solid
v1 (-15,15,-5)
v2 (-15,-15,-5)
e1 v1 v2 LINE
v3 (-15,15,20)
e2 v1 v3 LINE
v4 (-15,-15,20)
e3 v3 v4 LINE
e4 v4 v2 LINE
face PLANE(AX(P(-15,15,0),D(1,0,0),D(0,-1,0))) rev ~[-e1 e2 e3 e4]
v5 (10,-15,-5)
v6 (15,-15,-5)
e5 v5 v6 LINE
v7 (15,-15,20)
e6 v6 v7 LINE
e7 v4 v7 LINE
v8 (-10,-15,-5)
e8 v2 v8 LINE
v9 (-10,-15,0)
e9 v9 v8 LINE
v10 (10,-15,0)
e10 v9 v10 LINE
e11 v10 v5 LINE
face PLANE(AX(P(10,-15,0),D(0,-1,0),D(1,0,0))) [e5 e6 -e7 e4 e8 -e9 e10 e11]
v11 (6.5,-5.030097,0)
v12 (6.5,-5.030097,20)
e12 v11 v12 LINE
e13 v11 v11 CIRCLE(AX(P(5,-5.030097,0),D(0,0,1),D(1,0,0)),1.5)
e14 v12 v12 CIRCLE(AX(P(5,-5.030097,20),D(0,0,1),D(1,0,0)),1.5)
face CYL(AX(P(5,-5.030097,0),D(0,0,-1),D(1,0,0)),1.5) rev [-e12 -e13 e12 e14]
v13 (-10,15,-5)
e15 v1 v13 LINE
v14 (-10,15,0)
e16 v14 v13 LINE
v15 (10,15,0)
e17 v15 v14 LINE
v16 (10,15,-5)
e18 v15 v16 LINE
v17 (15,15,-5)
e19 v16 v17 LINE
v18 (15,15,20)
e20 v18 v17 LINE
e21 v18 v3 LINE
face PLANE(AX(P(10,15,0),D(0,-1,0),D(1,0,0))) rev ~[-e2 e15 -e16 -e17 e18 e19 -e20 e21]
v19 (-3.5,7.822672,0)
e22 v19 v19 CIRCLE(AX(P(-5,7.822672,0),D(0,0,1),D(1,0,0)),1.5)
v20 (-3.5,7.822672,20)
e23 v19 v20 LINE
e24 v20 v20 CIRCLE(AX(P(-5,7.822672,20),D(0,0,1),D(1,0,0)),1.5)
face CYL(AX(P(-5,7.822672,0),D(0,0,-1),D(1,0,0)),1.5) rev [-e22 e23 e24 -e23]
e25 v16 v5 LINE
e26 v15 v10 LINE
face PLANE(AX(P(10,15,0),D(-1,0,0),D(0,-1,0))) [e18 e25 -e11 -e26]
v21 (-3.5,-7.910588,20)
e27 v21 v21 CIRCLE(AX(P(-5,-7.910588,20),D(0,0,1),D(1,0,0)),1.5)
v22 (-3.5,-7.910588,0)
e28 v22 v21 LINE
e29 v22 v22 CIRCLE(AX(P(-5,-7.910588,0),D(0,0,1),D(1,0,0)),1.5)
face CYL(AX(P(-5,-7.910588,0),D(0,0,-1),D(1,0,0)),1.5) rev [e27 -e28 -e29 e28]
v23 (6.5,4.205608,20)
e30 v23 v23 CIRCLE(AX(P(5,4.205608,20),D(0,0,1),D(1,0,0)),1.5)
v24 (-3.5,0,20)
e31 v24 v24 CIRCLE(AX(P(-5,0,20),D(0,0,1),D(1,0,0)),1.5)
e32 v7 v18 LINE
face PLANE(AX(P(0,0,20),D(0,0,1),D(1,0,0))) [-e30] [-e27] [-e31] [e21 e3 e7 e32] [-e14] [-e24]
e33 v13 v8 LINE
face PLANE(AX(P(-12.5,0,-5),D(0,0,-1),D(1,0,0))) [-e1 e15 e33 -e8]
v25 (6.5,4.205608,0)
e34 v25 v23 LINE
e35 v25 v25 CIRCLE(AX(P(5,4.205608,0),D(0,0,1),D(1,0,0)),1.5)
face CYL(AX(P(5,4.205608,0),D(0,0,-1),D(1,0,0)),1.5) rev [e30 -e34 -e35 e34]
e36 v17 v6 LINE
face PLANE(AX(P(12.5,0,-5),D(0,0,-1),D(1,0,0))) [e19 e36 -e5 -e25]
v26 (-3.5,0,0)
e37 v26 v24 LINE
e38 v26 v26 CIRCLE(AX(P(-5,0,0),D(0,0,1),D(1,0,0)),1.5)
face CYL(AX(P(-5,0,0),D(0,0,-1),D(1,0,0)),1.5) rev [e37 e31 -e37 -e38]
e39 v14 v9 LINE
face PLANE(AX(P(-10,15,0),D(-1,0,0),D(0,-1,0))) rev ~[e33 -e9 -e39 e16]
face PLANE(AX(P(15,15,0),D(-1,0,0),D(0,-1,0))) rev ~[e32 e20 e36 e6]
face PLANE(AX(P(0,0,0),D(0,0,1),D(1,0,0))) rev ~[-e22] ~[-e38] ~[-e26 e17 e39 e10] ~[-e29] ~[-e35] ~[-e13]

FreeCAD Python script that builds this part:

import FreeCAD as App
import Part
import Sketcher

V = App.Vector


def add_polygon(sketch, points):
    """Adds a closed chain of lines whose ends are joined by coincident constraints."""
    first, n = sketch.GeometryCount, len(points)
    for a, b in zip(points, points[1:] + points[:1]):
        sketch.addGeometry(Part.LineSegment(App.Vector(*a, 0), App.Vector(*b, 0)), False)
    for i in range(n):
        sketch.addConstraint(Sketcher.Constraint("Coincident", first + i, 2, first + (i + 1) % n, 1))

doc = App.newDocument("Part")
body = doc.addObject("PartDesign::Body", "Body")

# Sketch on XY plane
sketch1 = doc.addObject("Sketcher::SketchObject", "Sketch")
body.addObject(sketch1)
sketch1.AttachmentSupport = (doc.XY_Plane, [""])
sketch1.MapMode = "FlatFace"
add_polygon(sketch1, [(-15, 15), (-15, -15), (15, -15), (15, 15)])  # lines 0-3
sketch1.addGeometry(Part.Circle(V(-5, -7.9, 0), V(0, 0, 1), 1.5), False)  # 4
sketch1.addGeometry(Part.Circle(V(5, -5, 0), V(0, 0, 1), 1.5), False)  # 5
sketch1.addGeometry(Part.Circle(V(-5, 0, 0), V(0, 0, 1), 1.5), False)  # 6
sketch1.addGeometry(Part.Circle(V(-5, 7.8, 0), V(0, 0, 1), 1.5), False)  # 7
sketch1.addGeometry(Part.Circle(V(5, 4.2, 0), V(0, 0, 1), 1.5), False)  # 8
sketch1.addConstraint(Sketcher.Constraint("Vertical", 0))
sketch1.addConstraint(Sketcher.Constraint("Horizontal", 1))
sketch1.addConstraint(Sketcher.Constraint("Vertical", 2))
sketch1.addConstraint(Sketcher.Constraint("Horizontal", 3))
sketch1.addConstraint(Sketcher.Constraint("Equal", 4, 5))
sketch1.addConstraint(Sketcher.Constraint("Equal", 5, 6))
sketch1.addConstraint(Sketcher.Constraint("Equal", 6, 7))
sketch1.addConstraint(Sketcher.Constraint("Equal", 7, 8))
sketch1.addConstraint(Sketcher.Constraint("Symmetric", 0, 2, 2, 2, -1, 1))
sketch1.addConstraint(Sketcher.Constraint("PointOnObject", 6, 3, -1))
sketch1.addConstraint(Sketcher.Constraint("Vertical", 4, 3, 6, 3))
sketch1.addConstraint(Sketcher.Constraint("Vertical", 6, 3, 7, 3))
sketch1.addConstraint(Sketcher.Constraint("Vertical", 5, 3, 8, 3))
sketch1.addConstraint(Sketcher.Constraint("Equal", 3, 0))
sketch1.addConstraint(Sketcher.Constraint("Diameter", 4, 3.0))
sketch1.addConstraint(Sketcher.Constraint("DistanceX", 1, 1, 1, 2, 30.0))
sketch1.addConstraint(Sketcher.Constraint("DistanceX", 4, 3, -1, 1, 5.0))
sketch1.addConstraint(Sketcher.Constraint("DistanceX", -1, 1, 5, 3, 5.0))
sketch1.addConstraint(Sketcher.Constraint("DistanceY", -1, 1, 7, 3, 7.822672))
sketch1.addConstraint(Sketcher.Constraint("DistanceY", 4, 3, 5, 3, 2.880491))
sketch1.addConstraint(Sketcher.Constraint("DistanceY", 4, 3, 7, 3, 15.73326))
sketch1.addConstraint(Sketcher.Constraint("DistanceY", -1, 1, 8, 3, 4.205608))
pad1 = doc.addObject("PartDesign::Pad", "Pad")
body.addObject(pad1)
pad1.Profile = sketch1
pad1.Length = 20

# Sketch on XY plane
sketch2 = doc.addObject("Sketcher::SketchObject", "Sketch001")
body.addObject(sketch2)
sketch2.AttachmentSupport = (doc.XY_Plane, [""])
sketch2.MapMode = "FlatFace"
add_polygon(sketch2, [(10, -15), (10, 15), (15, 15), (15, -15)])  # lines 0-3
add_polygon(sketch2, [(-15, -15), (-15, 15), (-10, 15), (-10, -15)])  # lines 4-7
sketch2.addConstraint(Sketcher.Constraint("Vertical", 0))
sketch2.addConstraint(Sketcher.Constraint("Horizontal", 1))
sketch2.addConstraint(Sketcher.Constraint("Vertical", 2))
sketch2.addConstraint(Sketcher.Constraint("Horizontal", 3))
sketch2.addConstraint(Sketcher.Constraint("Vertical", 4))
sketch2.addConstraint(Sketcher.Constraint("Horizontal", 5))
sketch2.addConstraint(Sketcher.Constraint("Vertical", 6))
sketch2.addConstraint(Sketcher.Constraint("Horizontal", 7))
sketch2.addConstraint(Sketcher.Constraint("Symmetric", 2, 2, 4, 2, -1, 1))
sketch2.addConstraint(Sketcher.Constraint("Symmetric", 0, 2, 6, 2, -1, 1))
sketch2.addConstraint(Sketcher.Constraint("Horizontal", 1, 2, 4, 2))
sketch2.addConstraint(Sketcher.Constraint("DistanceX", 1, 1, 1, 2, 5.0))
sketch2.addConstraint(Sketcher.Constraint("DistanceY", 0, 1, 0, 2, 30.0))
sketch2.addConstraint(Sketcher.Constraint("DistanceX", -1, 1, 0, 2, 10.0))
pad2 = doc.addObject("PartDesign::Pad", "Pad001")
body.addObject(pad2)
pad2.Profile = sketch2
pad2.Length = 5
pad2.Reversed = True

doc.recompute()
